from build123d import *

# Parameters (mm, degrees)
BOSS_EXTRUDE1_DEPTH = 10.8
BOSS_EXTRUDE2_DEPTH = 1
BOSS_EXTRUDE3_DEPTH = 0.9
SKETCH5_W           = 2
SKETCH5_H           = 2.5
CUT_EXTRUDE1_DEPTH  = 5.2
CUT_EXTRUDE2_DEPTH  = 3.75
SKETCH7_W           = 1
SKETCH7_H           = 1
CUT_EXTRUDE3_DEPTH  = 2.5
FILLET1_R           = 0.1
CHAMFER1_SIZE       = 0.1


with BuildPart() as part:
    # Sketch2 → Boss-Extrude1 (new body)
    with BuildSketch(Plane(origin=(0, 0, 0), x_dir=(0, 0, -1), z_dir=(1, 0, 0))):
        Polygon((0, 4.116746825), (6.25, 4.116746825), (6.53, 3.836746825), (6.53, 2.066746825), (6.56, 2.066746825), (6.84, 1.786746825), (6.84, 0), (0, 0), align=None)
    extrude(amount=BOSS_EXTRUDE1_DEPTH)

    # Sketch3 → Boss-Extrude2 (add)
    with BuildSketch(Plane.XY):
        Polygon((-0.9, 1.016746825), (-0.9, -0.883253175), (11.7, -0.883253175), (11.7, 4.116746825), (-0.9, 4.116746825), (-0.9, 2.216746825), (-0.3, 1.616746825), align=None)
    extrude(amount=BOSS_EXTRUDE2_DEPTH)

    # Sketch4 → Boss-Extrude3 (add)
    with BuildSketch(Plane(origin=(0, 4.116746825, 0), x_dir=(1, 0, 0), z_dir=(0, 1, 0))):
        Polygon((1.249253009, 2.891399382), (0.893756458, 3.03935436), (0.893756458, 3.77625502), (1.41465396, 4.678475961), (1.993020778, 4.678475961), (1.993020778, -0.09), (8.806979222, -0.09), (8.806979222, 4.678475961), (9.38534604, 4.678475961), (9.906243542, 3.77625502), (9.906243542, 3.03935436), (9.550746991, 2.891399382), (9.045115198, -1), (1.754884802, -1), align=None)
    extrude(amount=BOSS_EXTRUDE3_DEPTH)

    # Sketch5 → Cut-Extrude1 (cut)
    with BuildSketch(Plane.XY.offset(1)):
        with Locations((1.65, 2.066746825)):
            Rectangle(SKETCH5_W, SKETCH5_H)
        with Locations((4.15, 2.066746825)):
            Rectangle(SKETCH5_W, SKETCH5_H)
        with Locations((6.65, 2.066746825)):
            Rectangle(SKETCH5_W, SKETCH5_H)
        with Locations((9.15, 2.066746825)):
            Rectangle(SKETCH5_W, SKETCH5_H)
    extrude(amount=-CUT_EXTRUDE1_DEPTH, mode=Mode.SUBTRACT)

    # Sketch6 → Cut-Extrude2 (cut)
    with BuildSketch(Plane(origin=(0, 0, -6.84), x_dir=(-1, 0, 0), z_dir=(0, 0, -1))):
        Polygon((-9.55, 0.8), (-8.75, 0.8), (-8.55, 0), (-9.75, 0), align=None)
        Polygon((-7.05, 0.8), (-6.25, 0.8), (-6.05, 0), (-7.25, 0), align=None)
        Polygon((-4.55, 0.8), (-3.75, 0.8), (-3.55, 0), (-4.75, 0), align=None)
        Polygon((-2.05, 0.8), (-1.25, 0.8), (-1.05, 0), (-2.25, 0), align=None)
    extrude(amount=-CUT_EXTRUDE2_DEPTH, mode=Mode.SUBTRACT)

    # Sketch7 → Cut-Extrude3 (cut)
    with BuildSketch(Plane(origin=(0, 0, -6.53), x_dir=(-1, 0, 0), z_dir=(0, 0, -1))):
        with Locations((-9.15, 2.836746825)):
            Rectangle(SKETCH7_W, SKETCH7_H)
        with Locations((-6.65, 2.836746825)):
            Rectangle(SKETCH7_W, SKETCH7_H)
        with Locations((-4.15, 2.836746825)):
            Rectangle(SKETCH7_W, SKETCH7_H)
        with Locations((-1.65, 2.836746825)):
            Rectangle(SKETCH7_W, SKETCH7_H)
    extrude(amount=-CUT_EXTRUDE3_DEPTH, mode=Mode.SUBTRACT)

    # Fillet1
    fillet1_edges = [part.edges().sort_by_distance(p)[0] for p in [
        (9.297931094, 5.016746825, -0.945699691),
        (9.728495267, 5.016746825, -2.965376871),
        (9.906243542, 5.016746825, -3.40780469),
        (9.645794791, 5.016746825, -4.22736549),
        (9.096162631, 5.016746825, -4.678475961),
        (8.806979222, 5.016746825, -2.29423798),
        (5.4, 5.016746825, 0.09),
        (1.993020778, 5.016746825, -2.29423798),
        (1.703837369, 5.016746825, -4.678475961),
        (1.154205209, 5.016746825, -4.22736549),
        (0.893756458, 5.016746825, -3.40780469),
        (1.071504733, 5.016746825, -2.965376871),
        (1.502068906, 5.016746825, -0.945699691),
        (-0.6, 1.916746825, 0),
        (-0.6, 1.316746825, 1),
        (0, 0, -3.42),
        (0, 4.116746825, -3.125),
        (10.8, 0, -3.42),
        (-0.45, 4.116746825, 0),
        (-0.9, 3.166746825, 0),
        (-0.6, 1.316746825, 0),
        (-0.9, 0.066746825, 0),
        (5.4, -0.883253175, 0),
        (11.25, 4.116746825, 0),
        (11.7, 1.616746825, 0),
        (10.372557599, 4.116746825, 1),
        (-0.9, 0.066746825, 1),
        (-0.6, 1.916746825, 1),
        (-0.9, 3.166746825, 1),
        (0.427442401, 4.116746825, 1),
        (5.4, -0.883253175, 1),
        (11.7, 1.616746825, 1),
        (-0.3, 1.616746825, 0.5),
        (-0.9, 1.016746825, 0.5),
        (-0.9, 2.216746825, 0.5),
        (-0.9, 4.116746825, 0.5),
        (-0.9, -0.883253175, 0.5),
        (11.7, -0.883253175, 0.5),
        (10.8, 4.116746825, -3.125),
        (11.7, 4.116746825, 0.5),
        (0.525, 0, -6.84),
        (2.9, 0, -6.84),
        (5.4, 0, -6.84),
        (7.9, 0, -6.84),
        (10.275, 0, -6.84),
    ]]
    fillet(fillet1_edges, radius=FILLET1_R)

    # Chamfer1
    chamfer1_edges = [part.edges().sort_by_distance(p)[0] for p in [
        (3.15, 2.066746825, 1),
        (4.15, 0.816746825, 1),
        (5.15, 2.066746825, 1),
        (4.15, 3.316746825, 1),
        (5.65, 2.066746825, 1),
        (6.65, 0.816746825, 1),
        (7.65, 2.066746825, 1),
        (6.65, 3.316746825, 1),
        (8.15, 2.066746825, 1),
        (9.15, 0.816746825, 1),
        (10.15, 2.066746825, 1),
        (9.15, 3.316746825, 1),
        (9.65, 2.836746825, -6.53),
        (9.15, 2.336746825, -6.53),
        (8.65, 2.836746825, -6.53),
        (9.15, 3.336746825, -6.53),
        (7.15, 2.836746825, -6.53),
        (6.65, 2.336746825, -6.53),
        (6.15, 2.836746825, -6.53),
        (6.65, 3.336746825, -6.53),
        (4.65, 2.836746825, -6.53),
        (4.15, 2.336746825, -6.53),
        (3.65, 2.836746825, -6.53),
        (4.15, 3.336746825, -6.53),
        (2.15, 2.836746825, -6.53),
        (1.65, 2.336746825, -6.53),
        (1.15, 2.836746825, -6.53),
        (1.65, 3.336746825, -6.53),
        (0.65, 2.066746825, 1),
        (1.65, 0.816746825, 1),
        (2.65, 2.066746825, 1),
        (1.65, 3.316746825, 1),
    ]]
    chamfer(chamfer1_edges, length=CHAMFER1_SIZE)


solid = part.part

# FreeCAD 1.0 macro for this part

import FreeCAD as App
import Part
import Sketcher
from FreeCAD import Vector
Q = App.Units.Quantity


def edges_at(feature, points):
    """Names of the edges that pass closest to the given points."""
    edges = feature.Shape.Edges
    near = lambda p: min(range(len(edges)), key=lambda i: edges[i].distToShape(Part.Vertex(*p))[0])
    return sorted({f"Edge{near(p) + 1}" for p in points})


def add_polygon(sketch, points):
    """Adds a closed chain of lines whose ends are joined by coincident constraints."""
    first, n = sketch.GeometryCount, len(points)
    for a, b in zip(points, points[1:] + points[:1]):
        sketch.addGeometry(Part.LineSegment(App.Vector(*a, 0), App.Vector(*b, 0)), False)
    for i in range(n):
        sketch.addConstraint(Sketcher.Constraint("Coincident", first + i, 2, first + (i + 1) % n, 1))

doc = App.newDocument("Part")
params = doc.addObject("Spreadsheet::Sheet", "Params")
for row, (alias, value) in enumerate([
    ("sketch1_width", "1.77 mm"),
    ("sketch1_height", "6.25 mm"),
    ("sketch1_height2", "6.84 mm"),
    ("sketch1_height3", "0.03 mm"),
    ("pad1_length", "10.8 mm"),
    ("sketch2_height", "5 mm"),
    ("sketch2_width", "12.6 mm"),
    ("sketch2_height2", "1.9 mm"),
    ("pad2_length", "1 mm"),
    ("pad3_length", "0.9 mm"),
    ("sketch4_width", "2 mm"),
    ("sketch4_height", "2.5 mm"),
    ("pocket1_length", "5.2 mm"),
    ("sketch5_width", "0.8 mm"),
    ("sketch5_width2", "1.2 mm"),
    ("pocket2_length", "3.75 mm"),
    ("sketch6_width", "1 mm"),
    ("pocket3_length", "2.5 mm"),
    ("fillet_radius", "0.1 mm"),
    ("chamfer_size", "0.1 mm"),
], start=1):
    params.set(f"A{row}", alias)
    params.set(f"B{row}", "=" + value)
    params.setAlias(f"B{row}", alias)

body = doc.addObject("PartDesign::Body", "Body")

sketch1 = body.newObject("Sketcher::SketchObject", "Sketch")
sketch1.AttachmentSupport = (doc.getObject("YZ_Plane"), [""])
sketch1.MapMode = "FlatFace"
add_polygon(sketch1, [(4.117, -6.25), (4.117, 0), (0, 0), (0, -6.84), (1.787, -6.84), (2.067, -6.56), (2.067, -6.53), (3.837, -6.53)])
sketch1.addConstraint([
    Sketcher.Constraint("Vertical", 0),
    Sketcher.Constraint("Horizontal", 1),
    Sketcher.Constraint("Vertical", 2),
    Sketcher.Constraint("Horizontal", 3),
    Sketcher.Constraint("Vertical", 5),
    Sketcher.Constraint("Horizontal", 6),
    Sketcher.Constraint("Coincident", 1, 2, -1, 1),
    Sketcher.Constraint("Parallel", 4, 7),
    Sketcher.Constraint("Equal", 4, 7),
    Sketcher.Constraint("Angle", 4, Q("45 deg")),
    Sketcher.Constraint("DistanceX", 6, 1, 6, 2, 1.77),
    Sketcher.Constraint("DistanceY", 0, 1, 0, 2, 6.25),
    Sketcher.Constraint("DistanceY", 2, 2, 2, 1, 6.84),
    Sketcher.Constraint("DistanceY", 5, 1, 5, 2, 0.03),
    Sketcher.Constraint("DistanceX", 1, 2, 1, 1, 4.116747),
])
sketch1.setExpression("Constraints[18]", "Params.sketch1_width")
sketch1.setExpression("Constraints[19]", "Params.sketch1_height")
sketch1.setExpression("Constraints[20]", "Params.sketch1_height2")
sketch1.setExpression("Constraints[21]", "Params.sketch1_height3")
pad1 = body.newObject("PartDesign::Pad", "Pad")
pad1.Profile = sketch1
pad1.setExpression("Length", "Params.pad1_length")

sketch2 = body.newObject("Sketcher::SketchObject", "Sketch001")
sketch2.AttachmentSupport = (doc.getObject("XY_Plane"), [""])
sketch2.MapMode = "FlatFace"
add_polygon(sketch2, [(-0.9, 1), (-0.9, -0.9), (11.7, -0.9), (11.7, 4.1), (-0.9, 4.1), (-0.9, 2.2), (-0.3, 1.6)])
sketch2.addConstraint([
    Sketcher.Constraint("Vertical", 0),
    Sketcher.Constraint("Horizontal", 1),
    Sketcher.Constraint("Vertical", 2),
    Sketcher.Constraint("Horizontal", 3),
    Sketcher.Constraint("Vertical", 4),
    Sketcher.Constraint("Perpendicular", 5, 6),
    Sketcher.Constraint("Vertical", 0, 2, 3, 2),
    Sketcher.Constraint("Equal", 0, 4),
    Sketcher.Constraint("Equal", 5, 6),
    Sketcher.Constraint("DistanceY", 2, 1, 2, 2, 5.0),
    Sketcher.Constraint("DistanceX", 1, 1, 1, 2, 12.6),
    Sketcher.Constraint("DistanceY", 0, 2, 0, 1, 1.9),
    Sketcher.Constraint("DistanceX", 0, 2, -1, 1, 0.9),
    Sketcher.Constraint("DistanceY", 0, 2, -1, 1, 0.883253),
])
sketch2.setExpression("Constraints[16]", "Params.sketch2_height")
sketch2.setExpression("Constraints[17]", "Params.sketch2_width")
sketch2.setExpression("Constraints[18]", "Params.sketch2_height2")
pad2 = body.newObject("PartDesign::Pad", "Pad001")
pad2.Profile = sketch2
pad2.setExpression("Length", "Params.pad2_length")

sketch3 = body.newObject("Sketcher::SketchObject", "Sketch002")
sketch3.AttachmentSupport = (doc.getObject("XZ_Plane"), [""])
sketch3.MapMode = "FlatFace"
sketch3.AttachmentOffset = App.Placement(Vector(0, 0, -4.116747), App.Rotation())
add_polygon(sketch3, [(0.89, -3.04), (1.25, -2.89), (1.75, 1), (9.05, 1), (9.55, -2.89), (9.91, -3.04), (9.91, -3.78), (9.39, -4.68), (8.81, -4.68), (8.81, 0.09), (1.99, 0.09), (1.99, -4.68), (1.41, -4.68), (0.89, -3.78)])
sketch3.addConstraint([
    Sketcher.Constraint("Horizontal", 2),
    Sketcher.Constraint("Vertical", 5),
    Sketcher.Constraint("Horizontal", 7),
    Sketcher.Constraint("Vertical", 8),
    Sketcher.Constraint("Horizontal", 9),
    Sketcher.Constraint("Vertical", 10),
    Sketcher.Constraint("Horizontal", 11),
    Sketcher.Constraint("Vertical", 13),
    Sketcher.Constraint("Horizontal", 0, 2, 3, 2),
    Sketcher.Constraint("Horizontal", 7, 2, 10, 2),
    Sketcher.Constraint("Horizontal", 5, 2, 12, 2),
    Sketcher.Constraint("Horizontal", 4, 2, 13, 2),
    Sketcher.Constraint("Equal", 7, 11),
    Sketcher.Constraint("Equal", 1, 3),
    Sketcher.Constraint("Equal", 0, 4),
    Sketcher.Constraint("Equal", 6, 12),
    Sketcher.Constraint("Angle", 6, Q("-120 deg")),
    Sketcher.Constraint("DistanceY", -1, 1, 1, 2, 1.0),
    Sketcher.Constraint("DistanceY", -1, 1, 8, 2, 0.09),
    Sketcher.Constraint("DistanceY", 5, 2, 5, 1, 0.736901),
    Sketcher.Constraint("DistanceX", 2, 1, 2, 2, 7.29023),
    Sketcher.Constraint("DistanceX", 9, 2, 9, 1, 6.813958),
    Sketcher.Constraint("DistanceY", 0, 2, -1, 1, 2.891399),
    Sketcher.Constraint("DistanceX", 6, 2, 3, 2, 0.165401),
    Sketcher.Constraint("Distance", 1, 3.924112),
    Sketcher.Constraint("DistanceY", 8, 1, 8, 2, 4.768476),
    Sketcher.Constraint("DistanceX", -1, 1, 7, 2, 8.806979),
    Sketcher.Constraint("DistanceX", 2, 2, 4, 2, 0.861128),
])
pad3 = body.newObject("PartDesign::Pad", "Pad002")
pad3.Profile = sketch3
pad3.setExpression("Length", "Params.pad3_length")
pad3.Reversed = True

sketch4 = body.newObject("Sketcher::SketchObject", "Sketch003")
sketch4.AttachmentSupport = (doc.getObject("XY_Plane"), [""])
sketch4.MapMode = "FlatFace"
sketch4.AttachmentOffset = App.Placement(Vector(0, 0, 1), App.Rotation())
add_polygon(sketch4, [(0.7, 3.3), (0.7, 0.8), (2.6, 0.8), (2.6, 3.3)])
add_polygon(sketch4, [(3.1, 3.3), (3.1, 0.8), (5.2, 0.8), (5.2, 3.3)])
add_polygon(sketch4, [(5.7, 3.3), (5.7, 0.8), (7.7, 0.8), (7.7, 3.3)])
add_polygon(sketch4, [(8.2, 3.3), (8.2, 0.8), (10.2, 0.8), (10.2, 3.3)])
sketch4.addConstraint([
    Sketcher.Constraint("Vertical", 0),
    Sketcher.Constraint("Horizontal", 1),
    Sketcher.Constraint("Vertical", 2),
    Sketcher.Constraint("Horizontal", 3),
    Sketcher.Constraint("Vertical", 4),
    Sketcher.Constraint("Horizontal", 5),
    Sketcher.Constraint("Vertical", 6),
    Sketcher.Constraint("Horizontal", 7),
    Sketcher.Constraint("Vertical", 8),
    Sketcher.Constraint("Horizontal", 9),
    Sketcher.Constraint("Vertical", 10),
    Sketcher.Constraint("Horizontal", 11),
    Sketcher.Constraint("Vertical", 12),
    Sketcher.Constraint("Horizontal", 13),
    Sketcher.Constraint("Vertical", 14),
    Sketcher.Constraint("Horizontal", 15),
    Sketcher.Constraint("Horizontal", 1, 2, 4, 2),
    Sketcher.Constraint("Horizontal", 3, 2, 6, 2),
    Sketcher.Constraint("Horizontal", 5, 2, 8, 2),
    Sketcher.Constraint("Horizontal", 7, 2, 10, 2),
    Sketcher.Constraint("Horizontal", 9, 2, 12, 2),
    Sketcher.Constraint("Horizontal", 11, 2, 14, 2),
    Sketcher.Constraint("Equal", 3, 5),
    Sketcher.Constraint("Equal", 7, 9),
    Sketcher.Constraint("Equal", 11, 13),
    Sketcher.Constraint("DistanceX", 1, 1, 1, 2, 2.0),
    Sketcher.Constraint("DistanceY", 0, 2, 0, 1, 2.5),
    Sketcher.Constraint("DistanceX", 1, 2, 8, 2, 3.0),
    Sketcher.Constraint("DistanceX", 5, 2, 12, 2, 3.0),
    Sketcher.Constraint("DistanceX", 1, 2, 4, 2, 0.5),
    Sketcher.Constraint("DistanceX", -1, 1, 0, 2, 0.65),
    Sketcher.Constraint("DistanceY", -1, 1, 0, 2, 0.816747),
])
sketch4.setExpression("Constraints[41]", "Params.sketch4_width")
sketch4.setExpression("Constraints[42]", "Params.sketch4_height")
pocket1 = body.newObject("PartDesign::Pocket", "Pocket")
pocket1.Profile = sketch4
pocket1.setExpression("Length", "Params.pocket1_length")

sketch5 = body.newObject("Sketcher::SketchObject", "Sketch004")
sketch5.AttachmentSupport = (doc.getObject("XY_Plane"), [""])
sketch5.MapMode = "FlatFace"
sketch5.AttachmentOffset = App.Placement(Vector(0, 0, -6.84), App.Rotation())
add_polygon(sketch5, [(8.8, 0.8), (9.6, 0.8), (9.8, 0), (8.6, 0)])
add_polygon(sketch5, [(6.2, 0.8), (7, 0.8), (7.2, 0), (6, 0)])
add_polygon(sketch5, [(3.8, 0.8), (4.5, 0.8), (4.8, 0), (3.5, 0)])
add_polygon(sketch5, [(1.2, 0.8), (2, 0.8), (2.2, 0), (1.1, 0)])
sketch5.addConstraint([
    Sketcher.Constraint("Horizontal", 0),
    Sketcher.Constraint("Horizontal", 2),
    Sketcher.Constraint("Horizontal", 4),
    Sketcher.Constraint("Horizontal", 6),
    Sketcher.Constraint("Horizontal", 8),
    Sketcher.Constraint("Horizontal", 10),
    Sketcher.Constraint("Horizontal", 12),
    Sketcher.Constraint("Horizontal", 14),
    Sketcher.Constraint("PointOnObject", 1, 2, -1),
    Sketcher.Constraint("PointOnObject", 5, 2, -1),
    Sketcher.Constraint("PointOnObject", 9, 2, -1),
    Sketcher.Constraint("PointOnObject", 13, 2, -1),
    Sketcher.Constraint("Parallel", 1, 5),
    Sketcher.Constraint("Parallel", 3, 7),
    Sketcher.Constraint("Parallel", 5, 9),
    Sketcher.Constraint("Parallel", 7, 11),
    Sketcher.Constraint("Parallel", 9, 13),
    Sketcher.Constraint("Parallel", 11, 15),
    Sketcher.Constraint("Horizontal", 3, 2, 4, 2),
    Sketcher.Constraint("Horizontal", 7, 2, 8, 2),
    Sketcher.Constraint("Horizontal", 11, 2, 12, 2),
    Sketcher.Constraint("Equal", 0, 4),
    Sketcher.Constraint("Equal", 4, 8),
    Sketcher.Constraint("Equal", 8, 12),
    Sketcher.Constraint("Equal", 1, 3),
    Sketcher.Constraint("DistanceX", 0, 1, 0, 2, 0.8),
    Sketcher.Constraint("DistanceX", 2, 2, 2, 1, 1.2),
    Sketcher.Constraint("DistanceX", 8, 2, 2, 2, 4.0),
    Sketcher.Constraint("DistanceX", 12, 2, 6, 2, 4.0),
    Sketcher.Constraint("DistanceY", -1, 1, 0, 2, 0.8),
    Sketcher.Constraint("DistanceX", 4, 2, 3, 2, 1.7),
    Sketcher.Constraint("DistanceX", -1, 1, 0, 2, 9.55),
])
sketch5.setExpression("Constraints[41]", "Params.sketch5_width")
sketch5.setExpression("Constraints[42]", "Params.sketch5_width2")
pocket2 = body.newObject("PartDesign::Pocket", "Pocket001")
pocket2.Profile = sketch5
pocket2.setExpression("Length", "Params.pocket2_length")
pocket2.Reversed = True

sketch6 = body.newObject("Sketcher::SketchObject", "Sketch005")
sketch6.AttachmentSupport = (doc.getObject("XY_Plane"), [""])
sketch6.MapMode = "FlatFace"
sketch6.AttachmentOffset = App.Placement(Vector(0, 0, -6.53), App.Rotation())
add_polygon(sketch6, [(9.7, 3.3), (9.7, 2.3), (8.7, 2.3), (8.7, 3.3)])
add_polygon(sketch6, [(7.2, 3.3), (7.2, 2.3), (6.2, 2.3), (6.2, 3.3)])
add_polygon(sketch6, [(4.7, 3.3), (4.7, 2.3), (3.6, 2.3), (3.6, 3.3)])
add_polygon(sketch6, [(2.1, 3.3), (2.1, 2.3), (1.1, 2.3), (1.1, 3.3)])
sketch6.addConstraint([
    Sketcher.Constraint("Vertical", 0),
    Sketcher.Constraint("Horizontal", 1),
    Sketcher.Constraint("Vertical", 2),
    Sketcher.Constraint("Horizontal", 3),
    Sketcher.Constraint("Vertical", 4),
    Sketcher.Constraint("Horizontal", 5),
    Sketcher.Constraint("Vertical", 6),
    Sketcher.Constraint("Horizontal", 7),
    Sketcher.Constraint("Vertical", 8),
    Sketcher.Constraint("Horizontal", 9),
    Sketcher.Constraint("Vertical", 10),
    Sketcher.Constraint("Horizontal", 11),
    Sketcher.Constraint("Vertical", 12),
    Sketcher.Constraint("Horizontal", 13),
    Sketcher.Constraint("Vertical", 14),
    Sketcher.Constraint("Horizontal", 15),
    Sketcher.Constraint("Horizontal", 1, 2, 4, 2),
    Sketcher.Constraint("Horizontal", 3, 2, 6, 2),
    Sketcher.Constraint("Horizontal", 5, 2, 8, 2),
    Sketcher.Constraint("Horizontal", 7, 2, 10, 2),
    Sketcher.Constraint("Horizontal", 9, 2, 12, 2),
    Sketcher.Constraint("Horizontal", 11, 2, 14, 2),
    Sketcher.Constraint("Equal", 3, 5),
    Sketcher.Constraint("Equal", 7, 9),
    Sketcher.Constraint("Equal", 11, 13),
    Sketcher.Constraint("Equal", 15, 0),
    Sketcher.Constraint("DistanceX", 1, 2, 1, 1, 1.0),
    Sketcher.Constraint("DistanceX", 8, 2, 1, 2, 4.0),
    Sketcher.Constraint("DistanceX", 12, 2, 5, 2, 4.0),
    Sketcher.Constraint("DistanceX", 4, 2, 1, 2, 1.5),
    Sketcher.Constraint("DistanceX", -1, 1, 0, 2, 9.65),
    Sketcher.Constraint("DistanceY", -1, 1, 0, 2, 2.336747),
])
sketch6.setExpression("Constraints[42]", "Params.sketch6_width")
pocket3 = body.newObject("PartDesign::Pocket", "Pocket002")
pocket3.Profile = sketch6
pocket3.setExpression("Length", "Params.pocket3_length")
pocket3.Reversed = True
doc.recompute()

fillet = body.newObject("PartDesign::Fillet", "Fillet")
fillet.Base = (pocket3, edges_at(pocket3, [
    (9.298, 5.017, -0.946),
    (9.728, 5.017, -2.965),
    (9.906, 5.017, -3.408),
    (9.646, 5.017, -4.227),
    (9.096, 5.017, -4.678),
    (8.807, 5.017, -2.294),
    (5.4, 5.017, 0.09),
    (1.993, 5.017, -2.294),
    (1.704, 5.017, -4.678),
    (1.154, 5.017, -4.227),
    (0.894, 5.017, -3.408),
    (1.072, 5.017, -2.965),
    (1.502, 5.017, -0.946),
    (-0.6, 1.917, 0),
    (-0.6, 1.317, 1),
    (0, 0, -3.42),
    (0, 4.117, -3.125),
    (10.8, 0, -3.42),
    (-0.45, 4.117, 0),
    (-0.9, 3.167, 0),
    (-0.6, 1.317, 0),
    (-0.9, 0.067, 0),
    (5.4, -0.883, 0),
    (11.25, 4.117, 0),
    (11.7, 1.617, 0),
    (10.373, 4.117, 1),
    (-0.9, 0.067, 1),
    (-0.6, 1.917, 1),
    (-0.9, 3.167, 1),
    (0.427, 4.117, 1),
    (5.4, -0.883, 1),
    (11.7, 1.617, 1),
    (-0.3, 1.617, 0.5),
    (-0.9, 1.017, 0.5),
    (-0.9, 2.217, 0.5),
    (-0.9, 4.117, 0.5),
    (-0.9, -0.883, 0.5),
    (11.7, -0.883, 0.5),
    (10.8, 4.117, -3.125),
    (11.7, 4.117, 0.5),
    (0.525, 0, -6.84),
    (2.9, 0, -6.84),
    (5.4, 0, -6.84),
    (7.9, 0, -6.84),
    (10.275, 0, -6.84),
]))
fillet.setExpression("Radius", "Params.fillet_radius")
doc.recompute()

chamfer = body.newObject("PartDesign::Chamfer", "Chamfer")
chamfer.Base = (fillet, edges_at(fillet, [
    (3.15, 2.067, 1),
    (4.15, 0.817, 1),
    (5.15, 2.067, 1),
    (4.15, 3.317, 1),
    (5.65, 2.067, 1),
    (6.65, 0.817, 1),
    (7.65, 2.067, 1),
    (6.65, 3.317, 1),
    (8.15, 2.067, 1),
    (9.15, 0.817, 1),
    (10.15, 2.067, 1),
    (9.15, 3.317, 1),
    (9.65, 2.837, -6.53),
    (9.15, 2.337, -6.53),
    (8.65, 2.837, -6.53),
    (9.15, 3.337, -6.53),
    (7.15, 2.837, -6.53),
    (6.65, 2.337, -6.53),
    (6.15, 2.837, -6.53),
    (6.65, 3.337, -6.53),
    (4.65, 2.837, -6.53),
    (4.15, 2.337, -6.53),
    (3.65, 2.837, -6.53),
    (4.15, 3.337, -6.53),
    (2.15, 2.837, -6.53),
    (1.65, 2.337, -6.53),
    (1.15, 2.837, -6.53),
    (1.65, 3.337, -6.53),
    (0.65, 2.067, 1),
    (1.65, 0.817, 1),
    (2.65, 2.067, 1),
    (1.65, 3.317, 1),
]))
chamfer.setExpression("Size", "Params.chamfer_size")

doc.recompute()
